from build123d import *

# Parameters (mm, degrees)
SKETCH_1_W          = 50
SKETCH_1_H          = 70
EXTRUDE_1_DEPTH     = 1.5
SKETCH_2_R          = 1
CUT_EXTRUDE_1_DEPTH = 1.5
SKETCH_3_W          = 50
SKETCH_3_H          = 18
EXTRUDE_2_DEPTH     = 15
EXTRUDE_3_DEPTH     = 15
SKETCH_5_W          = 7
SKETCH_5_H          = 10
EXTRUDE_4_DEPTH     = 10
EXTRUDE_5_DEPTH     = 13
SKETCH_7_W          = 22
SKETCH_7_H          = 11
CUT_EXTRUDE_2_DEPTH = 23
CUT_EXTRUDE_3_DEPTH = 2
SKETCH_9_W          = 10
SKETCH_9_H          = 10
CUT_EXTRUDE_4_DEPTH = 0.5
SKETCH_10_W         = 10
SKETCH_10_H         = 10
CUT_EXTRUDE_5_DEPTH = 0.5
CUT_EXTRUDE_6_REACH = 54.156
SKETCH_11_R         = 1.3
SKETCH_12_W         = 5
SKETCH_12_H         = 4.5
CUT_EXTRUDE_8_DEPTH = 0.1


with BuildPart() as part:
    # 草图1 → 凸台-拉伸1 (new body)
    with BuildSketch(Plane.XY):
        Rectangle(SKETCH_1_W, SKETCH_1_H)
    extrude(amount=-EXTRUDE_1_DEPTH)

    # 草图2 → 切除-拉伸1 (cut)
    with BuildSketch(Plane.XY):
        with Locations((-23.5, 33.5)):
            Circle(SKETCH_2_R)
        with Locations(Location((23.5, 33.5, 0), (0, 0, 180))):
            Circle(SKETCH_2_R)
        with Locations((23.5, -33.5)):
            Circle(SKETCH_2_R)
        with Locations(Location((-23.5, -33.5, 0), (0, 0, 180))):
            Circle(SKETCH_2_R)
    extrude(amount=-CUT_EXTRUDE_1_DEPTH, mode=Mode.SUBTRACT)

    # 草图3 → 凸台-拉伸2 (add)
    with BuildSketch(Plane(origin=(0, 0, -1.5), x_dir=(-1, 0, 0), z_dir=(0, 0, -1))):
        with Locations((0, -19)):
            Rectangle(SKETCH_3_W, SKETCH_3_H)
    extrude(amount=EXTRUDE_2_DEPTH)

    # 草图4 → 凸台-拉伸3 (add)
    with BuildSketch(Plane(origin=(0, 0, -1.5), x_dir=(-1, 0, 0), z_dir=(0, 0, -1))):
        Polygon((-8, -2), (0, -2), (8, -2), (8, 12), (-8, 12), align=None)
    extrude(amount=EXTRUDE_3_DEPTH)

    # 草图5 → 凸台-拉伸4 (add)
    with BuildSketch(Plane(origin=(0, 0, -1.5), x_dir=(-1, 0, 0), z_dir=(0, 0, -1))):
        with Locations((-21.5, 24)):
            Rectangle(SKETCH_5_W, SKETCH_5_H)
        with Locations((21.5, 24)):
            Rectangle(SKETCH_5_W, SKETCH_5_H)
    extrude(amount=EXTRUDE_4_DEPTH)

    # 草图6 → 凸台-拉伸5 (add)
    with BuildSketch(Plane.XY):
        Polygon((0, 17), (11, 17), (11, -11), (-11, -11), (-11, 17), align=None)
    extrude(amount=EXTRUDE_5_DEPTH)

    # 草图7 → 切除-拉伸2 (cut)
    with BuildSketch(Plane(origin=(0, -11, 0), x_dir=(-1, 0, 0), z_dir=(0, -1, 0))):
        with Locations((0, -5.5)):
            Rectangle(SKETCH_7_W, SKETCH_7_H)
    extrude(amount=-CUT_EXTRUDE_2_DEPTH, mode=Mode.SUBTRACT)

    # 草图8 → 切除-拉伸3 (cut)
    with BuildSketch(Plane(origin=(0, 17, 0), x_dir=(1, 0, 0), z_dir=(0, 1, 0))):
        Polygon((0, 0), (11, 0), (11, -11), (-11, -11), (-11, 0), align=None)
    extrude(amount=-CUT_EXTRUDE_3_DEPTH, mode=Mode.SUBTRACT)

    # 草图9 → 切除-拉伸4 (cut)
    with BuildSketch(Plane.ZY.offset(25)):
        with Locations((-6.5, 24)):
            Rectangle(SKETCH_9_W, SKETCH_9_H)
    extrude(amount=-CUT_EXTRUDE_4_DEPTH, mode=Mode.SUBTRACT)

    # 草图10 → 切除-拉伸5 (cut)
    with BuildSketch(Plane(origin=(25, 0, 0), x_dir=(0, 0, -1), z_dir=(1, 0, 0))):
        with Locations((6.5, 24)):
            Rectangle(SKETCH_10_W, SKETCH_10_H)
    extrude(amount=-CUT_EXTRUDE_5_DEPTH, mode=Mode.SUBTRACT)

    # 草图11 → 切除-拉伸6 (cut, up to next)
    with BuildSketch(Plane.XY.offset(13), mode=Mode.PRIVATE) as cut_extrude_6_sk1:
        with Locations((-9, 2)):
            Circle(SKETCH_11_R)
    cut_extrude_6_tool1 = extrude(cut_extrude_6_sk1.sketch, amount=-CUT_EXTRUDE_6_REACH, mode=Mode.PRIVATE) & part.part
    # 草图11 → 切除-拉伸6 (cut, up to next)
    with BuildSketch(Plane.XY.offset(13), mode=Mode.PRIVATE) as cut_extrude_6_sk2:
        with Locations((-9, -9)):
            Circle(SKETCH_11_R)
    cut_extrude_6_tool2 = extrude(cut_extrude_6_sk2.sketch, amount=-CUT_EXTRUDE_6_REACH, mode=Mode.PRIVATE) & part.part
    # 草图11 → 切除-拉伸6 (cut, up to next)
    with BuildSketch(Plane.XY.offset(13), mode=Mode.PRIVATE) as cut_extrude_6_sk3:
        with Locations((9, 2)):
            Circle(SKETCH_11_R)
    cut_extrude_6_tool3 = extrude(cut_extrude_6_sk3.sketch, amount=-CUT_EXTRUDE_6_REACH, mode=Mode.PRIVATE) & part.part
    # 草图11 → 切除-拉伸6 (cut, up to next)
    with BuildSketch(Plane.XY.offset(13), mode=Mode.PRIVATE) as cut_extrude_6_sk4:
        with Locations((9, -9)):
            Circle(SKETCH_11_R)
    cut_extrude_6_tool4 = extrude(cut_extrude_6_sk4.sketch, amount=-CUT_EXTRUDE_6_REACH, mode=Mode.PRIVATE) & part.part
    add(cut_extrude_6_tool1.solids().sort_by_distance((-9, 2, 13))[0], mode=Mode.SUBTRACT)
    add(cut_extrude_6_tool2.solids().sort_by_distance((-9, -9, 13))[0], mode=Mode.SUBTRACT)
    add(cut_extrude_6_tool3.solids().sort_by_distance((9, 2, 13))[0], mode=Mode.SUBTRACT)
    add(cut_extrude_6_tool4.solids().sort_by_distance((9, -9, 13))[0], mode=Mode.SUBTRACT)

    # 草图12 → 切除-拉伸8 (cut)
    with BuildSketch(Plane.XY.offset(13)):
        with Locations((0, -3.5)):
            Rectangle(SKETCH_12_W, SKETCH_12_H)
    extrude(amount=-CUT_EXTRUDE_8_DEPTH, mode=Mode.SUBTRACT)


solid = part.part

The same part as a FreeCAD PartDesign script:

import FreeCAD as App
import Part
import Sketcher

doc = App.newDocument("Part")
body = doc.addObject("PartDesign::Body", "Body")

# Sketch on XY plane
sketch1 = body.newObject("Sketcher::SketchObject", "Sketch")
sketch1.AttachmentSupport = (doc.getObject("XY_Plane"), [""])
sketch1.MapMode = "FlatFace"
sketch1.addGeometry([
    Part.LineSegment(App.Vector(-25, 35, 0), App.Vector(-25, -35, 0)),
    Part.LineSegment(App.Vector(-25, -35, 0), App.Vector(25, -35, 0)),
    Part.LineSegment(App.Vector(25, -35, 0), App.Vector(25, 35, 0)),
    Part.LineSegment(App.Vector(25, 35, 0), App.Vector(-25, 35, 0)),
], False)
sketch1.addConstraint([
    Sketcher.Constraint("Coincident", 0, 2, 1, 1),
    Sketcher.Constraint("Coincident", 1, 2, 2, 1),
    Sketcher.Constraint("Coincident", 2, 2, 3, 1),
    Sketcher.Constraint("Coincident", 3, 2, 0, 1),
    Sketcher.Constraint("Vertical", 0),
    Sketcher.Constraint("Horizontal", 1),
    Sketcher.Constraint("Vertical", 2),
    Sketcher.Constraint("Horizontal", 3),
    Sketcher.Constraint("Symmetric", 0, 2, 2, 2, -1, 1),
    Sketcher.Constraint("DistanceX", 1, 1, 1, 2, 50.0),
    Sketcher.Constraint("DistanceY", 0, 2, 0, 1, 70.0),
])
pad1 = body.newObject("PartDesign::Pad", "Pad")
pad1.Profile = sketch1
pad1.Length = 1.5
pad1.Reversed = True

# Sketch on XY plane
sketch2 = body.newObject("Sketcher::SketchObject", "Sketch001")
sketch2.AttachmentSupport = (doc.getObject("XY_Plane"), [""])
sketch2.MapMode = "FlatFace"
sketch2.addGeometry([
    Part.Circle(App.Vector(-23.5, 33.5, 0), App.Vector(0, 0, 1), 1),
    Part.Circle(App.Vector(23.5, 33.5, 0), App.Vector(0, 0, 1), 1),
    Part.Circle(App.Vector(23.5, -33.5, 0), App.Vector(0, 0, 1), 1),
    Part.Circle(App.Vector(-23.5, -33.5, 0), App.Vector(0, 0, 1), 1),
], False)
sketch2.addConstraint([
    Sketcher.Constraint("Equal", 0, 1),
    Sketcher.Constraint("Equal", 1, 2),
    Sketcher.Constraint("Equal", 2, 3),
    Sketcher.Constraint("Symmetric", 0, 3, 2, 3, -1, 1),
    Sketcher.Constraint("Symmetric", 1, 3, 3, 3, -1, 1),
    Sketcher.Constraint("Symmetric", 0, 3, 1, 3, -2),
    Sketcher.Constraint("Diameter", 0, 2.0),
    Sketcher.Constraint("DistanceX", 0, 3, 1, 3, 47.0),
    Sketcher.Constraint("DistanceY", 2, 3, 1, 3, 67.0),
])
pocket1 = body.newObject("PartDesign::Pocket", "Pocket")
pocket1.Profile = sketch2
pocket1.Length = 1.5

# Sketch on XY plane
sketch3 = body.newObject("Sketcher::SketchObject", "Sketch002")
sketch3.AttachmentSupport = (doc.getObject("XY_Plane"), [""])
sketch3.MapMode = "FlatFace"
sketch3.AttachmentOffset = App.Placement(App.Vector(0, 0, -1.5), App.Rotation())
sketch3.addGeometry([
    Part.LineSegment(App.Vector(25, -10, 0), App.Vector(25, -28, 0)),
    Part.LineSegment(App.Vector(25, -28, 0), App.Vector(-25, -28, 0)),
    Part.LineSegment(App.Vector(-25, -28, 0), App.Vector(-25, -10, 0)),
    Part.LineSegment(App.Vector(-25, -10, 0), App.Vector(25, -10, 0)),
], False)
sketch3.addConstraint([
    Sketcher.Constraint("Coincident", 0, 2, 1, 1),
    Sketcher.Constraint("Coincident", 1, 2, 2, 1),
    Sketcher.Constraint("Coincident", 2, 2, 3, 1),
    Sketcher.Constraint("Coincident", 3, 2, 0, 1),
    Sketcher.Constraint("Vertical", 0),
    Sketcher.Constraint("Horizontal", 1),
    Sketcher.Constraint("Vertical", 2),
    Sketcher.Constraint("Horizontal", 3),
    Sketcher.Constraint("DistanceX", 1, 2, 1, 1, 50.0),
    Sketcher.Constraint("DistanceY", 0, 2, 0, 1, 18.0),
    Sketcher.Constraint("DistanceX", -1, 1, 0, 2, 25.0),
    Sketcher.Constraint("DistanceY", 0, 2, -1, 1, 28.0),
])
pad2 = body.newObject("PartDesign::Pad", "Pad001")
pad2.Profile = sketch3
pad2.Length = 15
pad2.Reversed = True

# Sketch on XY plane
sketch4 = body.newObject("Sketcher::SketchObject", "Sketch003")
sketch4.AttachmentSupport = (doc.getObject("XY_Plane"), [""])
sketch4.MapMode = "FlatFace"
sketch4.AttachmentOffset = App.Placement(App.Vector(0, 0, -1.5), App.Rotation())
sketch4.addGeometry([
    Part.LineSegment(App.Vector(8, -2, 0), App.Vector(-8, -2, 0)),
    Part.LineSegment(App.Vector(-8, -2, 0), App.Vector(-8, 12, 0)),
    Part.LineSegment(App.Vector(-8, 12, 0), App.Vector(8, 12, 0)),
    Part.LineSegment(App.Vector(8, 12, 0), App.Vector(8, -2, 0)),
], False)
sketch4.addConstraint([
    Sketcher.Constraint("Coincident", 0, 2, 1, 1),
    Sketcher.Constraint("Coincident", 1, 2, 2, 1),
    Sketcher.Constraint("Coincident", 2, 2, 3, 1),
    Sketcher.Constraint("Coincident", 3, 2, 0, 1),
    Sketcher.Constraint("Horizontal", 0),
    Sketcher.Constraint("Vertical", 1),
    Sketcher.Constraint("Horizontal", 2),
    Sketcher.Constraint("Vertical", 3),
    Sketcher.Constraint("DistanceX", 0, 2, 0, 1, 16.0),
    Sketcher.Constraint("DistanceY", 1, 1, 1, 2, 14.0),
    Sketcher.Constraint("DistanceX", 0, 2, -1, 1, 8.0),
    Sketcher.Constraint("DistanceY", 0, 2, -1, 1, 2.0),
])
pad3 = body.newObject("PartDesign::Pad", "Pad002")
pad3.Profile = sketch4
pad3.Length = 15
pad3.Reversed = True

# Sketch on XY plane
sketch5 = body.newObject("Sketcher::SketchObject", "Sketch004")
sketch5.AttachmentSupport = (doc.getObject("XY_Plane"), [""])
sketch5.MapMode = "FlatFace"
sketch5.AttachmentOffset = App.Placement(App.Vector(0, 0, -1.5), App.Rotation())
sketch5.addGeometry([
    Part.LineSegment(App.Vector(25, 29, 0), App.Vector(25, 19, 0)),  # 0
    Part.LineSegment(App.Vector(25, 19, 0), App.Vector(18, 19, 0)),  # 1
    Part.LineSegment(App.Vector(18, 19, 0), App.Vector(18, 29, 0)),  # 2
    Part.LineSegment(App.Vector(18, 29, 0), App.Vector(25, 29, 0)),  # 3
    Part.LineSegment(App.Vector(-18, 29, 0), App.Vector(-18, 19, 0)),  # 4
    Part.LineSegment(App.Vector(-18, 19, 0), App.Vector(-25, 19, 0)),  # 5
    Part.LineSegment(App.Vector(-25, 19, 0), App.Vector(-25, 29, 0)),  # 6
    Part.LineSegment(App.Vector(-25, 29, 0), App.Vector(-18, 29, 0)),  # 7
], False)
sketch5.addConstraint([
    Sketcher.Constraint("Coincident", 0, 2, 1, 1),
    Sketcher.Constraint("Coincident", 1, 2, 2, 1),
    Sketcher.Constraint("Coincident", 2, 2, 3, 1),
    Sketcher.Constraint("Coincident", 3, 2, 0, 1),
    Sketcher.Constraint("Coincident", 4, 2, 5, 1),
    Sketcher.Constraint("Coincident", 5, 2, 6, 1),
    Sketcher.Constraint("Coincident", 6, 2, 7, 1),
    Sketcher.Constraint("Coincident", 7, 2, 4, 1),
    Sketcher.Constraint("Vertical", 0),
    Sketcher.Constraint("Horizontal", 1),
    Sketcher.Constraint("Vertical", 2),
    Sketcher.Constraint("Horizontal", 3),
    Sketcher.Constraint("Vertical", 4),
    Sketcher.Constraint("Horizontal", 5),
    Sketcher.Constraint("Vertical", 6),
    Sketcher.Constraint("Horizontal", 7),
    Sketcher.Constraint("Symmetric", 1, 2, 4, 2, -2),
    Sketcher.Constraint("Symmetric", 3, 2, 6, 2, -2),
    Sketcher.Constraint("DistanceX", 1, 2, 1, 1, 7.0),
    Sketcher.Constraint("DistanceY", 0, 2, 0, 1, 10.0),
    Sketcher.Constraint("DistanceX", -1, 1, 0, 2, 25.0),
    Sketcher.Constraint("DistanceY", -1, 1, 0, 2, 19.0),
])
pad4 = body.newObject("PartDesign::Pad", "Pad003")
pad4.Profile = sketch5
pad4.Length = 10
pad4.Reversed = True

# Sketch on XY plane
sketch6 = body.newObject("Sketcher::SketchObject", "Sketch005")
sketch6.AttachmentSupport = (doc.getObject("XY_Plane"), [""])
sketch6.MapMode = "FlatFace"
sketch6.addGeometry([
    Part.LineSegment(App.Vector(11, 17, 0), App.Vector(-11, 17, 0)),
    Part.LineSegment(App.Vector(-11, 17, 0), App.Vector(-11, -11, 0)),
    Part.LineSegment(App.Vector(-11, -11, 0), App.Vector(11, -11, 0)),
    Part.LineSegment(App.Vector(11, -11, 0), App.Vector(11, 17, 0)),
], False)
sketch6.addConstraint([
    Sketcher.Constraint("Coincident", 0, 2, 1, 1),
    Sketcher.Constraint("Coincident", 1, 2, 2, 1),
    Sketcher.Constraint("Coincident", 2, 2, 3, 1),
    Sketcher.Constraint("Coincident", 3, 2, 0, 1),
    Sketcher.Constraint("Horizontal", 0),
    Sketcher.Constraint("Vertical", 1),
    Sketcher.Constraint("Horizontal", 2),
    Sketcher.Constraint("Vertical", 3),
    Sketcher.Constraint("DistanceX", 0, 2, 0, 1, 22.0),
    Sketcher.Constraint("DistanceY", 1, 2, 1, 1, 28.0),
    Sketcher.Constraint("DistanceX", 0, 2, -1, 1, 11.0),
    Sketcher.Constraint("DistanceY", -1, 1, 0, 2, 17.0),
])
pad5 = body.newObject("PartDesign::Pad", "Pad004")
pad5.Profile = sketch6
pad5.Length = 13

# Sketch on XZ plane
sketch7 = body.newObject("Sketcher::SketchObject", "Sketch006")
sketch7.AttachmentSupport = (doc.getObject("XZ_Plane"), [""])
sketch7.MapMode = "FlatFace"
sketch7.AttachmentOffset = App.Placement(App.Vector(0, 0, 11), App.Rotation())
sketch7.addGeometry([
    Part.LineSegment(App.Vector(11, 0, 0), App.Vector(11, 11, 0)),
    Part.LineSegment(App.Vector(11, 11, 0), App.Vector(-11, 11, 0)),
    Part.LineSegment(App.Vector(-11, 11, 0), App.Vector(-11, 0, 0)),
    Part.LineSegment(App.Vector(-11, 0, 0), App.Vector(11, 0, 0)),
], False)
sketch7.addConstraint([
    Sketcher.Constraint("Coincident", 0, 2, 1, 1),
    Sketcher.Constraint("Coincident", 1, 2, 2, 1),
    Sketcher.Constraint("Coincident", 2, 2, 3, 1),
    Sketcher.Constraint("Coincident", 3, 2, 0, 1),
    Sketcher.Constraint("Vertical", 0),
    Sketcher.Constraint("Horizontal", 1),
    Sketcher.Constraint("Vertical", 2),
    Sketcher.Constraint("Horizontal", 3),
    Sketcher.Constraint("Symmetric", 2, 2, 3, 2, -1, 1),
    Sketcher.Constraint("DistanceX", 1, 2, 1, 1, 22.0),
    Sketcher.Constraint("DistanceY", 0, 1, 0, 2, 11.0),
])
pocket2 = body.newObject("PartDesign::Pocket", "Pocket001")
pocket2.Profile = sketch7
pocket2.Length = 23

# Sketch on XZ plane
sketch8 = body.newObject("Sketcher::SketchObject", "Sketch007")
sketch8.AttachmentSupport = (doc.getObject("XZ_Plane"), [""])
sketch8.MapMode = "FlatFace"
sketch8.AttachmentOffset = App.Placement(App.Vector(0, 0, -17), App.Rotation())
sketch8.addGeometry([
    Part.LineSegment(App.Vector(11, 0, 0), App.Vector(-11, 0, 0)),
    Part.LineSegment(App.Vector(-11, 0, 0), App.Vector(-11, 11, 0)),
    Part.LineSegment(App.Vector(-11, 11, 0), App.Vector(11, 11, 0)),
    Part.LineSegment(App.Vector(11, 11, 0), App.Vector(11, 0, 0)),
], False)
sketch8.addConstraint([
    Sketcher.Constraint("Coincident", 0, 2, 1, 1),
    Sketcher.Constraint("Coincident", 1, 2, 2, 1),
    Sketcher.Constraint("Coincident", 2, 2, 3, 1),
    Sketcher.Constraint("Coincident", 3, 2, 0, 1),
    Sketcher.Constraint("Horizontal", 0),
    Sketcher.Constraint("Vertical", 1),
    Sketcher.Constraint("Horizontal", 2),
    Sketcher.Constraint("Vertical", 3),
    Sketcher.Constraint("Symmetric", 0, 2, 3, 2, -1, 1),
    Sketcher.Constraint("DistanceX", 0, 2, 0, 1, 22.0),
    Sketcher.Constraint("DistanceY", 1, 1, 1, 2, 11.0),
])
pocket3 = body.newObject("PartDesign::Pocket", "Pocket002")
pocket3.Profile = sketch8
pocket3.Length = 2
pocket3.Reversed = True

# Sketch on YZ plane
sketch9 = body.newObject("Sketcher::SketchObject", "Sketch008")
sketch9.AttachmentSupport = (doc.getObject("YZ_Plane"), [""])
sketch9.MapMode = "FlatFace"
sketch9.AttachmentOffset = App.Placement(App.Vector(0, 0, -25), App.Rotation())
sketch9.addGeometry([
    Part.LineSegment(App.Vector(29, -12, 0), App.Vector(19, -12, 0)),
    Part.LineSegment(App.Vector(19, -12, 0), App.Vector(19, -2, 0)),
    Part.LineSegment(App.Vector(19, -2, 0), App.Vector(29, -2, 0)),
    Part.LineSegment(App.Vector(29, -2, 0), App.Vector(29, -12, 0)),
], False)
sketch9.addConstraint([
    Sketcher.Constraint("Coincident", 0, 2, 1, 1),
    Sketcher.Constraint("Coincident", 1, 2, 2, 1),
    Sketcher.Constraint("Coincident", 2, 2, 3, 1),
    Sketcher.Constraint("Coincident", 3, 2, 0, 1),
    Sketcher.Constraint("Horizontal", 0),
    Sketcher.Constraint("Vertical", 1),
    Sketcher.Constraint("Horizontal", 2),
    Sketcher.Constraint("Vertical", 3),
    Sketcher.Constraint("Equal", 2, 1),
    Sketcher.Constraint("DistanceX", 0, 2, 0, 1, 10.0),
    Sketcher.Constraint("DistanceX", -1, 1, 0, 2, 19.0),
    Sketcher.Constraint("DistanceY", 0, 2, -1, 1, 11.5),
])
pocket4 = body.newObject("PartDesign::Pocket", "Pocket003")
pocket4.Profile = sketch9
pocket4.Length = 0.5
pocket4.Reversed = True

# Sketch on YZ plane
sketch10 = body.newObject("Sketcher::SketchObject", "Sketch009")
sketch10.AttachmentSupport = (doc.getObject("YZ_Plane"), [""])
sketch10.MapMode = "FlatFace"
sketch10.AttachmentOffset = App.Placement(App.Vector(0, 0, 25), App.Rotation())
sketch10.addGeometry([
    Part.LineSegment(App.Vector(29, -2, 0), App.Vector(19, -2, 0)),
    Part.LineSegment(App.Vector(19, -2, 0), App.Vector(19, -12, 0)),
    Part.LineSegment(App.Vector(19, -12, 0), App.Vector(29, -12, 0)),
    Part.LineSegment(App.Vector(29, -12, 0), App.Vector(29, -2, 0)),
], False)
sketch10.addConstraint([
    Sketcher.Constraint("Coincident", 0, 2, 1, 1),
    Sketcher.Constraint("Coincident", 1, 2, 2, 1),
    Sketcher.Constraint("Coincident", 2, 2, 3, 1),
    Sketcher.Constraint("Coincident", 3, 2, 0, 1),
    Sketcher.Constraint("Horizontal", 0),
    Sketcher.Constraint("Vertical", 1),
    Sketcher.Constraint("Horizontal", 2),
    Sketcher.Constraint("Vertical", 3),
    Sketcher.Constraint("Equal", 2, 1),
    Sketcher.Constraint("DistanceX", 0, 2, 0, 1, 10.0),
    Sketcher.Constraint("DistanceX", -1, 1, 0, 2, 19.0),
    Sketcher.Constraint("DistanceY", 0, 2, -1, 1, 1.5),
])
pocket5 = body.newObject("PartDesign::Pocket", "Pocket004")
pocket5.Profile = sketch10
pocket5.Length = 0.5

# Sketch on XY plane
sketch11 = body.newObject("Sketcher::SketchObject", "Sketch010")
sketch11.AttachmentSupport = (doc.getObject("XY_Plane"), [""])
sketch11.MapMode = "FlatFace"
sketch11.AttachmentOffset = App.Placement(App.Vector(0, 0, 13), App.Rotation())
sketch11.addGeometry(Part.Circle(App.Vector(-9, 2, 0), App.Vector(0, 0, 1), 1.3), False)
sketch11.addConstraint([
    Sketcher.Constraint("Diameter", 0, 2.6),
    Sketcher.Constraint("DistanceX", 0, 3, -1, 1, 9.0),
    Sketcher.Constraint("DistanceY", -1, 1, 0, 3, 2.0),
])
pocket6 = body.newObject("PartDesign::Pocket", "Pocket005")
pocket6.Profile = sketch11
pocket6.Type = "UpToFirst"

# Sketch on XY plane
sketch12 = body.newObject("Sketcher::SketchObject", "Sketch011")
sketch12.AttachmentSupport = (doc.getObject("XY_Plane"), [""])
sketch12.MapMode = "FlatFace"
sketch12.AttachmentOffset = App.Placement(App.Vector(0, 0, 13), App.Rotation())
sketch12.addGeometry(Part.Circle(App.Vector(-9, -9, 0), App.Vector(0, 0, 1), 1.3), False)
sketch12.addConstraint([
    Sketcher.Constraint("Diameter", 0, 2.6),
    Sketcher.Constraint("DistanceX", 0, 3, -1, 1, 9.0),
    Sketcher.Constraint("DistanceY", 0, 3, -1, 1, 9.0),
])
pocket7 = body.newObject("PartDesign::Pocket", "Pocket006")
pocket7.Profile = sketch12
pocket7.Type = "UpToFirst"

# Sketch on XY plane
sketch13 = body.newObject("Sketcher::SketchObject", "Sketch012")
sketch13.AttachmentSupport = (doc.getObject("XY_Plane"), [""])
sketch13.MapMode = "FlatFace"
sketch13.AttachmentOffset = App.Placement(App.Vector(0, 0, 13), App.Rotation())
sketch13.addGeometry(Part.Circle(App.Vector(9, 2, 0), App.Vector(0, 0, 1), 1.3), False)
sketch13.addConstraint([
    Sketcher.Constraint("Diameter", 0, 2.6),
    Sketcher.Constraint("DistanceX", -1, 1, 0, 3, 9.0),
    Sketcher.Constraint("DistanceY", -1, 1, 0, 3, 2.0),
])
pocket8 = body.newObject("PartDesign::Pocket", "Pocket007")
pocket8.Profile = sketch13
pocket8.Type = "UpToFirst"

# Sketch on XY plane
sketch14 = body.newObject("Sketcher::SketchObject", "Sketch013")
sketch14.AttachmentSupport = (doc.getObject("XY_Plane"), [""])
sketch14.MapMode = "FlatFace"
sketch14.AttachmentOffset = App.Placement(App.Vector(0, 0, 13), App.Rotation())
sketch14.addGeometry(Part.Circle(App.Vector(9, -9, 0), App.Vector(0, 0, 1), 1.3), False)
sketch14.addConstraint([
    Sketcher.Constraint("Diameter", 0, 2.6),
    Sketcher.Constraint("DistanceX", -1, 1, 0, 3, 9.0),
    Sketcher.Constraint("DistanceY", 0, 3, -1, 1, 9.0),
])
pocket9 = body.newObject("PartDesign::Pocket", "Pocket008")
pocket9.Profile = sketch14
pocket9.Type = "UpToFirst"

# Sketch on XY plane
sketch15 = body.newObject("Sketcher::SketchObject", "Sketch014")
sketch15.AttachmentSupport = (doc.getObject("XY_Plane"), [""])
sketch15.MapMode = "FlatFace"
sketch15.AttachmentOffset = App.Placement(App.Vector(0, 0, 13), App.Rotation())
sketch15.addGeometry([
    Part.LineSegment(App.Vector(-2.5, -1.2, 0), App.Vector(-2.5, -5.8, 0)),
    Part.LineSegment(App.Vector(-2.5, -5.8, 0), App.Vector(2.5, -5.8, 0)),
    Part.LineSegment(App.Vector(2.5, -5.8, 0), App.Vector(2.5, -1.2, 0)),
    Part.LineSegment(App.Vector(2.5, -1.2, 0), App.Vector(-2.5, -1.2, 0)),
], False)
sketch15.addConstraint([
    Sketcher.Constraint("Coincident", 0, 2, 1, 1),
    Sketcher.Constraint("Coincident", 1, 2, 2, 1),
    Sketcher.Constraint("Coincident", 2, 2, 3, 1),
    Sketcher.Constraint("Coincident", 3, 2, 0, 1),
    Sketcher.Constraint("Vertical", 0),
    Sketcher.Constraint("Horizontal", 1),
    Sketcher.Constraint("Vertical", 2),
    Sketcher.Constraint("Horizontal", 3),
    Sketcher.Constraint("DistanceX", 1, 1, 1, 2, 5.0),
    Sketcher.Constraint("DistanceY", 0, 2, 0, 1, 4.5),
    Sketcher.Constraint("DistanceX", 0, 2, -1, 1, 2.5),
    Sketcher.Constraint("DistanceY", 0, 2, -1, 1, 5.75),
])
pocket10 = body.newObject("PartDesign::Pocket", "Pocket009")
pocket10.Profile = sketch15
pocket10.Length = 0.1

doc.recompute()
